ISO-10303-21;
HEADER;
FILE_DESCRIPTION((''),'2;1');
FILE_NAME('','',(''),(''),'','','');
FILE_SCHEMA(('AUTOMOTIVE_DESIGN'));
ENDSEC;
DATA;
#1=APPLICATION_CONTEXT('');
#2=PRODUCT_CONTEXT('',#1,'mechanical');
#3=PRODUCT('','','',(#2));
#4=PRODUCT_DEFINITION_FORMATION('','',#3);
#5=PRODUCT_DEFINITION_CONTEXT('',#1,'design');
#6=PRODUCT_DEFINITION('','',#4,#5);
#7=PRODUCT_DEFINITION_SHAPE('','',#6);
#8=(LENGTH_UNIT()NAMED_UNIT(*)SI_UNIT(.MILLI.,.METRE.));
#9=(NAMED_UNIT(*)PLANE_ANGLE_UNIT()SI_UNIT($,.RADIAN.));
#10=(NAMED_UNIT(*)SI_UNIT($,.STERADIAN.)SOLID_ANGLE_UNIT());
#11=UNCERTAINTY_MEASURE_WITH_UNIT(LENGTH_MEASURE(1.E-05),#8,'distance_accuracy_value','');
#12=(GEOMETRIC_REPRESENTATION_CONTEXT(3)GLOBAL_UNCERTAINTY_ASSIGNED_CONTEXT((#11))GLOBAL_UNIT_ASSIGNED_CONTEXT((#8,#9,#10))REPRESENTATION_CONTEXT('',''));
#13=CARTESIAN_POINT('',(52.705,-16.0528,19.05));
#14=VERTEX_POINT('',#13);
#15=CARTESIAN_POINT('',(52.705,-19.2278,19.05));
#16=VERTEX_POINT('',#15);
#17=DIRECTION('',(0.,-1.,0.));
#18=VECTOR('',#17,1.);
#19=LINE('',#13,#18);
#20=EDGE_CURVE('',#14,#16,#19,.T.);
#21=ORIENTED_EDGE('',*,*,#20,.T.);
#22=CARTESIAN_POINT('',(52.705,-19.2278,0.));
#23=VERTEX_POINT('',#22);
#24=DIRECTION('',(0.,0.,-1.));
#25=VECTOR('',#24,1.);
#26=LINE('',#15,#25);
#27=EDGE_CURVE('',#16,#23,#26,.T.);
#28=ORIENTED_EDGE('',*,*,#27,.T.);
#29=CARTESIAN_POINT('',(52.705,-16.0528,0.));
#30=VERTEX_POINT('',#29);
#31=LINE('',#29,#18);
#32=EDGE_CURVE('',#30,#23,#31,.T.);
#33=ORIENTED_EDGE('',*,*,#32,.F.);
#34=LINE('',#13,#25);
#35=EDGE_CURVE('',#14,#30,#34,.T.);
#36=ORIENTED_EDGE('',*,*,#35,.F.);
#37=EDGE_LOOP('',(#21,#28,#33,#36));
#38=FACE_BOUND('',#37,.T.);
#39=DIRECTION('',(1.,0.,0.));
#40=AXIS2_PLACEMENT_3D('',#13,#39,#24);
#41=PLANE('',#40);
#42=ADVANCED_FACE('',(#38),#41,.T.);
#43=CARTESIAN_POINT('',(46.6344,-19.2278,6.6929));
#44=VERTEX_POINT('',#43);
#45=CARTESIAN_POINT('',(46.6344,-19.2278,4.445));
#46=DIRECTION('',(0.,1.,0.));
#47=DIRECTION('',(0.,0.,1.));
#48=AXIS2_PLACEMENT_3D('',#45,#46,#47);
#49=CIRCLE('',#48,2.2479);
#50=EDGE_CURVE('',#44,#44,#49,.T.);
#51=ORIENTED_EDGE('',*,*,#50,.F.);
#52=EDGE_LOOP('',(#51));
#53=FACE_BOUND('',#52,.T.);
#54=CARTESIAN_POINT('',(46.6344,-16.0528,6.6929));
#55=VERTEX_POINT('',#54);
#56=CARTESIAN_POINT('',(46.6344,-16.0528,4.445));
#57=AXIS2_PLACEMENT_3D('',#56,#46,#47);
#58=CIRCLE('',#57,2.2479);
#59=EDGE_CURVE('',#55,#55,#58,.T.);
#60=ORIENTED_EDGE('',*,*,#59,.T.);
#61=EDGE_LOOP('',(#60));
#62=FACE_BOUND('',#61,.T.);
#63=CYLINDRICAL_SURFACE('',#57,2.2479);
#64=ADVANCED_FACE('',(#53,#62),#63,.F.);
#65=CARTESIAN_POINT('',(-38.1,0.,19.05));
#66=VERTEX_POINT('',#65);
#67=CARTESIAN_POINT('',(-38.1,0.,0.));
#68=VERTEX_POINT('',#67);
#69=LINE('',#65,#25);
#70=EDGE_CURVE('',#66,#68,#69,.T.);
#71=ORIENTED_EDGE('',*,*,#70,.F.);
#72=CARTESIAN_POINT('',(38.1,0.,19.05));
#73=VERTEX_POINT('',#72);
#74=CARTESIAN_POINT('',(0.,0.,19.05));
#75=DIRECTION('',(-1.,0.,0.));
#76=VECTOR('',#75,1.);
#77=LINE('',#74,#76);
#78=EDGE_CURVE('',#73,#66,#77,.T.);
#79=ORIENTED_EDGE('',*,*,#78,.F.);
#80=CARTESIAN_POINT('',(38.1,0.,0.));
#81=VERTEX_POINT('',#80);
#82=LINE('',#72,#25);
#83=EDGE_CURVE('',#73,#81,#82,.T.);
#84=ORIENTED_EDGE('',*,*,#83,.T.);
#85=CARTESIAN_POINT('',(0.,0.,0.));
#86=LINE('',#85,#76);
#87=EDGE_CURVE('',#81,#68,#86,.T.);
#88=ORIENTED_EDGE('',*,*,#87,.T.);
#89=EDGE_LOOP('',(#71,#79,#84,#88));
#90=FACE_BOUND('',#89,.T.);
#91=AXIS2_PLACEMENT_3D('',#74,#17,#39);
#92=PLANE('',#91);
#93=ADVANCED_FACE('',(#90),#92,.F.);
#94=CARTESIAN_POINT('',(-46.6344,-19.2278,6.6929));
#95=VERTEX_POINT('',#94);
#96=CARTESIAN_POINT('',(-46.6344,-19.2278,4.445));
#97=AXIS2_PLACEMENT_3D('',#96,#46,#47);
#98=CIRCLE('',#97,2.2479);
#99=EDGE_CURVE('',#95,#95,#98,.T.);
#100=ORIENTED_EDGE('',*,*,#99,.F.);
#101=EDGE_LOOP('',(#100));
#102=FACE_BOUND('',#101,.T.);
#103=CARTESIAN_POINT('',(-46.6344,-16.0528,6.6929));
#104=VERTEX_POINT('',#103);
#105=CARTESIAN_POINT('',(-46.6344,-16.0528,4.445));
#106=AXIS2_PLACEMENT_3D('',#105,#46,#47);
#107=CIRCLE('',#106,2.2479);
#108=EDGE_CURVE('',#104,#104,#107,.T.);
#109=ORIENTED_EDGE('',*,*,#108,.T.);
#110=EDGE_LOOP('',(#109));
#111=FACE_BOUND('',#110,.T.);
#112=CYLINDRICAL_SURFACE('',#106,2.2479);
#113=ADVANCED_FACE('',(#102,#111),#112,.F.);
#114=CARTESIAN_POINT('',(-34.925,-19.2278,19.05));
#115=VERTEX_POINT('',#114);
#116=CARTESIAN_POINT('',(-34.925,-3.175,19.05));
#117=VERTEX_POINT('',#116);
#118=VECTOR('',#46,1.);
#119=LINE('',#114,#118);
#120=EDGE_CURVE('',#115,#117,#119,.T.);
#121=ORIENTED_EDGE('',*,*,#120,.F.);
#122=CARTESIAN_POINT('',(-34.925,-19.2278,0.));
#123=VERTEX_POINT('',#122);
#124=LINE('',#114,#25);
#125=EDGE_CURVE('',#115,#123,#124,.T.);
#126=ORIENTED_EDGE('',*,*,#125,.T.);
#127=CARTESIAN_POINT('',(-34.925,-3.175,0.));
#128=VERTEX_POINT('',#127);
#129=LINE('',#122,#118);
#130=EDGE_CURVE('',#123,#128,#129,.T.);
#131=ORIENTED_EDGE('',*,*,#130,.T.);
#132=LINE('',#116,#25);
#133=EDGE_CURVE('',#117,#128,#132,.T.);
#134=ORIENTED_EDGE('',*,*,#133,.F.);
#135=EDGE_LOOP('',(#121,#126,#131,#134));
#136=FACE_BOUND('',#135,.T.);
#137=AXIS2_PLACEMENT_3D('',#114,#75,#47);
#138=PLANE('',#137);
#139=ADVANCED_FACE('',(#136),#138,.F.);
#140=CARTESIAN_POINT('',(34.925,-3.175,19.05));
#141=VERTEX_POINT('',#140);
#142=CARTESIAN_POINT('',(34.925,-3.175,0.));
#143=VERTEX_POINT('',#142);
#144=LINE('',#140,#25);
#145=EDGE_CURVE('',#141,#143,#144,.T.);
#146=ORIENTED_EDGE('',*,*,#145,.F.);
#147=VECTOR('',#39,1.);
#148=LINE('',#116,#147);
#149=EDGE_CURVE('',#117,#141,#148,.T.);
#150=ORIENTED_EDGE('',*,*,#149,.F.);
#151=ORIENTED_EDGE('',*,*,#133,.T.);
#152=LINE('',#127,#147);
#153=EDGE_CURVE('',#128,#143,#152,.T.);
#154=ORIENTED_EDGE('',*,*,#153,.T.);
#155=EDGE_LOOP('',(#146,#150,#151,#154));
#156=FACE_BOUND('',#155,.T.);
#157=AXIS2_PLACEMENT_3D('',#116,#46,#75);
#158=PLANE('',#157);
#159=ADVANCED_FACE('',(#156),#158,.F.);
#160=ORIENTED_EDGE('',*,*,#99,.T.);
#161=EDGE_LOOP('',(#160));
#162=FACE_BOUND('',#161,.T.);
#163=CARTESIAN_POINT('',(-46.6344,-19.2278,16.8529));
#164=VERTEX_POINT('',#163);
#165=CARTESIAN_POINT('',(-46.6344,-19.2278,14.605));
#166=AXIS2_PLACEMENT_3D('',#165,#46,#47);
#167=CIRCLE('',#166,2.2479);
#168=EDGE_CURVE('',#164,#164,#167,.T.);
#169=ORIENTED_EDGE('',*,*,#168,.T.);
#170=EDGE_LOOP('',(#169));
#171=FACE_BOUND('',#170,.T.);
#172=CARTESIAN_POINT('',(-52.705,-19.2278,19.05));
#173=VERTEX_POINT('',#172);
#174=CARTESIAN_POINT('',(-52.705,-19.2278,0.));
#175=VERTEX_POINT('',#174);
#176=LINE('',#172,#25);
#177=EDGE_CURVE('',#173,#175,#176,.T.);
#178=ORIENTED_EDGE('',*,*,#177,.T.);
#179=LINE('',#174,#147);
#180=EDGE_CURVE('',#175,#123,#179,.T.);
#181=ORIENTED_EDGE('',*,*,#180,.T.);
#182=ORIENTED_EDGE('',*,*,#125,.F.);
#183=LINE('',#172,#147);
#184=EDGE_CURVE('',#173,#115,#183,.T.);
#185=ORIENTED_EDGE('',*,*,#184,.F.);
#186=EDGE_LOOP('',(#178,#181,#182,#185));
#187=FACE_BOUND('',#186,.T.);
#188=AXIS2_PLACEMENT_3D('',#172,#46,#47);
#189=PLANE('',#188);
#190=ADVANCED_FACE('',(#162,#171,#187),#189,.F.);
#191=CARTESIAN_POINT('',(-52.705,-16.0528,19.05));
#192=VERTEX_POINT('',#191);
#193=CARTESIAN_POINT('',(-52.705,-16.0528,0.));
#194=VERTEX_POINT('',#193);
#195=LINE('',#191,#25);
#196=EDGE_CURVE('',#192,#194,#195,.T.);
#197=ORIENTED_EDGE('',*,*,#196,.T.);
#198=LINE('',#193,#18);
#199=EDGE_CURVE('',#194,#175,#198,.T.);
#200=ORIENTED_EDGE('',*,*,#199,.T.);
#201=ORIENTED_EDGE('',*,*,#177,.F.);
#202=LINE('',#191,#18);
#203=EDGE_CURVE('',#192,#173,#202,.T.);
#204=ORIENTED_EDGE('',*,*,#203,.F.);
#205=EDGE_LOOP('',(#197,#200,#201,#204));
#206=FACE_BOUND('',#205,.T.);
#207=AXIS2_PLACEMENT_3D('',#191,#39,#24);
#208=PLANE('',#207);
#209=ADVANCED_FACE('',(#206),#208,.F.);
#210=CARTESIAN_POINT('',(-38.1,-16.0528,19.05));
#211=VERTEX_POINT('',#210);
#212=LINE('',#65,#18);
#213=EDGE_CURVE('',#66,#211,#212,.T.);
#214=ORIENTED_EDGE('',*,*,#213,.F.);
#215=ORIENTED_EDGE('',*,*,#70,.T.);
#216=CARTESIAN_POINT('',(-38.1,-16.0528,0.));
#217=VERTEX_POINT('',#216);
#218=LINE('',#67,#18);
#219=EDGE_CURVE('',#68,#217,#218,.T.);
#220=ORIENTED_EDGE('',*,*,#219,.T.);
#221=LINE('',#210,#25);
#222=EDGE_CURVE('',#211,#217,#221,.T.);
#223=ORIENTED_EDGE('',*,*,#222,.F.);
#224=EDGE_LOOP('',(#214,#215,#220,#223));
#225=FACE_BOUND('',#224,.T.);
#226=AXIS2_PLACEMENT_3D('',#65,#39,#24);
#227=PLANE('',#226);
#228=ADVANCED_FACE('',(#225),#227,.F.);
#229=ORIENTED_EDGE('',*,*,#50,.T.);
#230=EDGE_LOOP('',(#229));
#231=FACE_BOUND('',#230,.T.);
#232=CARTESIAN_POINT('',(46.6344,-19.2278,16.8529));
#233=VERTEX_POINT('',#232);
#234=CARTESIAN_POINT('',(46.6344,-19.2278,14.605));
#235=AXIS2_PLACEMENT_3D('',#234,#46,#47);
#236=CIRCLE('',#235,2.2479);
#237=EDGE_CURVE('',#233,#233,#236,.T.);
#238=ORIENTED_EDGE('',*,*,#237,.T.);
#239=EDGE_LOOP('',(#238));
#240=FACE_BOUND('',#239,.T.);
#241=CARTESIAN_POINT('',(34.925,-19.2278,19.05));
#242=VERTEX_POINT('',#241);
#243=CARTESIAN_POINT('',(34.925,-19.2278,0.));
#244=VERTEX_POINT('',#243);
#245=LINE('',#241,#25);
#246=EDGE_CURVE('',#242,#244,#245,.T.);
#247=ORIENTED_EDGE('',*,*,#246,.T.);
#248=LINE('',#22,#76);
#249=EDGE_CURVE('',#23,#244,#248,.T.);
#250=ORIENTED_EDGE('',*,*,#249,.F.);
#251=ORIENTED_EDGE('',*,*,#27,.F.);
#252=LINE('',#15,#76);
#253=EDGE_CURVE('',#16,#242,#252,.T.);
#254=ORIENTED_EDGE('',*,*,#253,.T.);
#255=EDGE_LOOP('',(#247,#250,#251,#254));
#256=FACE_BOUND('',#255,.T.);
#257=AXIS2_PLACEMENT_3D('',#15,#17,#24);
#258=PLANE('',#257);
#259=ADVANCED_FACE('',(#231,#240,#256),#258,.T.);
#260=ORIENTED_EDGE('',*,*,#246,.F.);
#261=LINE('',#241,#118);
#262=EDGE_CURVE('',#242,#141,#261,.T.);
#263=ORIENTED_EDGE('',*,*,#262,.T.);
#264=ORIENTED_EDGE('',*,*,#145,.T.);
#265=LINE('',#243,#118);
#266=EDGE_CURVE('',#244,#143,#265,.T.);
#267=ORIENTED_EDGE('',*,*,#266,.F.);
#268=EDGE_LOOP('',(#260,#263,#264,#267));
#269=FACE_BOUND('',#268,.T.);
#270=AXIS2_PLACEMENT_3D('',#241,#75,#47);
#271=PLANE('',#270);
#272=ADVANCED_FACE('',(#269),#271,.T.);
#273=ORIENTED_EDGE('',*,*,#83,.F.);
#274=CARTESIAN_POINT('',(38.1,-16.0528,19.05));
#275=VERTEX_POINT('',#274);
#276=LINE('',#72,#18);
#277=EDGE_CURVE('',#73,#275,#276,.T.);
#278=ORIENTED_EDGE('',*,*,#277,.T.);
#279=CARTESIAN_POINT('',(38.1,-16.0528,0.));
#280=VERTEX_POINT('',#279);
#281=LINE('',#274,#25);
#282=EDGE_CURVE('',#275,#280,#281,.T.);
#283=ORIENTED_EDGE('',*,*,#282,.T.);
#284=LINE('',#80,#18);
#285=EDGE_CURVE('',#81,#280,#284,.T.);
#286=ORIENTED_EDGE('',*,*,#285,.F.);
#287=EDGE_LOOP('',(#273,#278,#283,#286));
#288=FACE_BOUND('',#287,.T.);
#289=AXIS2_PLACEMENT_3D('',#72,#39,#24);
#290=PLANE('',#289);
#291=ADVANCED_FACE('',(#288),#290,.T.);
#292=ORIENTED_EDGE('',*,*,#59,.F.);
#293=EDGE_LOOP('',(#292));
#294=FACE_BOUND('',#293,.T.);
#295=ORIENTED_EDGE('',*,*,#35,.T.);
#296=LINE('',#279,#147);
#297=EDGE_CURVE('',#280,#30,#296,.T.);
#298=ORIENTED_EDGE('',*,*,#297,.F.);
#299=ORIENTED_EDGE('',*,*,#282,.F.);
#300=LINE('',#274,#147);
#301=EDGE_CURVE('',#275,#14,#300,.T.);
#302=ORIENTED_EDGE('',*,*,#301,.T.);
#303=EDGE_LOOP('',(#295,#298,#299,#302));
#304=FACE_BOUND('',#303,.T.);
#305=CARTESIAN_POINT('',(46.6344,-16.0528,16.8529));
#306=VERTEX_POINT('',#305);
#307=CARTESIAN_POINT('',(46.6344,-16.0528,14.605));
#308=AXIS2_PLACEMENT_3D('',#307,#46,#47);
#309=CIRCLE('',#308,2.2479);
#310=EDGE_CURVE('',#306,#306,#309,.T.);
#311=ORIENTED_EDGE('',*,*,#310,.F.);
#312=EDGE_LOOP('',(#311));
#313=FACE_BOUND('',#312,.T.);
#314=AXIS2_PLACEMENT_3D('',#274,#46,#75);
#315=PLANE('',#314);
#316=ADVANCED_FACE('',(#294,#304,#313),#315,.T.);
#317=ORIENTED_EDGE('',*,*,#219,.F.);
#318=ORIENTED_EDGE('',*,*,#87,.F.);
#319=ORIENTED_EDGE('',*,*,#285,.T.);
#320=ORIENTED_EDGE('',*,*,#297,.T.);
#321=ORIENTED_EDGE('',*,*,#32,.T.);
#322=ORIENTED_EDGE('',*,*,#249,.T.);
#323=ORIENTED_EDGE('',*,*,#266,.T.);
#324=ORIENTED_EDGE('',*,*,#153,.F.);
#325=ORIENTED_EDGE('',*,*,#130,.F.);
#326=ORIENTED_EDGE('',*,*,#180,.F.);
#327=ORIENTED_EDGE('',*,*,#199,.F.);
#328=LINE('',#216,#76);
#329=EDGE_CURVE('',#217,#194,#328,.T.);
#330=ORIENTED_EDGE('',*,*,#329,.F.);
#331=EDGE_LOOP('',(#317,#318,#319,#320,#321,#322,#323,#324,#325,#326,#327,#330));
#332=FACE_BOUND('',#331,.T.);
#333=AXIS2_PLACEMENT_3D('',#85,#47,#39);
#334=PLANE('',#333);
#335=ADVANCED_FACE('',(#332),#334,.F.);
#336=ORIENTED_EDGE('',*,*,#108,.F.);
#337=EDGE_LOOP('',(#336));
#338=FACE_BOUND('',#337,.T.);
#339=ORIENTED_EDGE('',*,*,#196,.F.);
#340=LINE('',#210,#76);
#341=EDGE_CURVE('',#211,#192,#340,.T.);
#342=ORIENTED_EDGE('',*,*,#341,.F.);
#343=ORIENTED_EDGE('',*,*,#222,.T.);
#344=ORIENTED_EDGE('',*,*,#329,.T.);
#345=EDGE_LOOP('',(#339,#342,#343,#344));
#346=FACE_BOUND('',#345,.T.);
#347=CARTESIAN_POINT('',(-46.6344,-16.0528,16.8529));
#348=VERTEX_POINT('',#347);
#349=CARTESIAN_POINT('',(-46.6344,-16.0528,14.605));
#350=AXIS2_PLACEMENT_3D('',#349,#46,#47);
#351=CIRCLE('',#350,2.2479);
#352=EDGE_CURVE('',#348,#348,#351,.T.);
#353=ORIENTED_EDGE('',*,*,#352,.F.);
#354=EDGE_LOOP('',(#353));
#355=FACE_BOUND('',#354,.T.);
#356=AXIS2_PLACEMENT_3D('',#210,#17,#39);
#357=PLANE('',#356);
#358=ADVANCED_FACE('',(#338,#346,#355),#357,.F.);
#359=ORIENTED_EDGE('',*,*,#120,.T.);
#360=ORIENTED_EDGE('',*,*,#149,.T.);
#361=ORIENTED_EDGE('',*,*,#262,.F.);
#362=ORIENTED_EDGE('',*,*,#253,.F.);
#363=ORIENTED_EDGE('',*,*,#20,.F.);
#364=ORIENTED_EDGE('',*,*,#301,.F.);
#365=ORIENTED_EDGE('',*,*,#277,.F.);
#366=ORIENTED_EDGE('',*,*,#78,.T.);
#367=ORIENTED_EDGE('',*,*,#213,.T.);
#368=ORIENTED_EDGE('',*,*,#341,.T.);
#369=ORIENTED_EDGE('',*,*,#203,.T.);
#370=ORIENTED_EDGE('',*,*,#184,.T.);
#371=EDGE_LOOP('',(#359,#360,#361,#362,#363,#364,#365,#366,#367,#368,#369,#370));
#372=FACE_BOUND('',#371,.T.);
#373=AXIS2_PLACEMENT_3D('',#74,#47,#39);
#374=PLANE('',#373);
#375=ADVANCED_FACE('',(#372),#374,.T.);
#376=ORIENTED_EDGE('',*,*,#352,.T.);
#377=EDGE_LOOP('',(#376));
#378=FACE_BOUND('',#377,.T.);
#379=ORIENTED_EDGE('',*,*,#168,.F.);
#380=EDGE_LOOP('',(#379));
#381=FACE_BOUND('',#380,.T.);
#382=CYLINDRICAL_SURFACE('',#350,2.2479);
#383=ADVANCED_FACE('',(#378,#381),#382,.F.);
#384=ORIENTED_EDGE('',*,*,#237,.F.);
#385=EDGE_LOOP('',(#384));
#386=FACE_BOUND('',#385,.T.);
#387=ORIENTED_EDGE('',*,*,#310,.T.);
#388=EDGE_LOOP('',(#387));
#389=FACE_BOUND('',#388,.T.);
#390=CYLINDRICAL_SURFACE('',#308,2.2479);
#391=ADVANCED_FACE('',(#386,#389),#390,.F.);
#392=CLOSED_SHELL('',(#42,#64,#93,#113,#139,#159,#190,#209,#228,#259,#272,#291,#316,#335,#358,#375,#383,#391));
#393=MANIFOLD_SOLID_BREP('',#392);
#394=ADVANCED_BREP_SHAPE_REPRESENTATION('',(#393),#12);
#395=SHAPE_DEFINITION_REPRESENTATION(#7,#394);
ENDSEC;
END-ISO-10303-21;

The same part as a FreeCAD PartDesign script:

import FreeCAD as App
import Part
import Sketcher
Q = App.Units.Quantity

doc = App.newDocument("Part")
params = doc.addObject("Spreadsheet::Sheet", "Params")
for row, (alias, value) in enumerate([
    ("sketch1_width", "1.5 in"),
    ("sketch1_width2", "0.7 in"),
    ("sketch1_width3", "0.575 in"),
    ("sketch1_height", "0.632 in"),
    ("sketch1_height2", "0.125 in"),
    ("pad1_length", "0.75 in"),
    ("sketch2_diameter", "0.177 in"),
    ("hole_diameter", "0.177 in"),
], start=1):
    params.set(f"A{row}", alias)
    params.set(f"B{row}", "=" + value)
    params.setAlias(f"B{row}", alias)

body = doc.addObject("PartDesign::Body", "Body")

sketch1 = body.newObject("Sketcher::SketchObject", "Sketch")
sketch1.AttachmentSupport = (doc.getObject("XY_Plane"), [""])
sketch1.MapMode = "FlatFace"
sketch1.addGeometry([
    Part.LineSegment(App.Vector(0, 0, 0), App.Vector(-38.1, 0, 0)),
    Part.LineSegment(App.Vector(-38.1, 0, 0), App.Vector(-38.1, -16.1, 0)),
    Part.LineSegment(App.Vector(-38.1, -16.1, 0), App.Vector(-52.7, -16.1, 0)),
    Part.LineSegment(App.Vector(-52.7, -16.1, 0), App.Vector(-52.7, -19.2, 0)),
    Part.LineSegment(App.Vector(-52.7, -19.2, 0), App.Vector(-34.9, -19.2, 0)),
    Part.LineSegment(App.Vector(-34.9, -19.2, 0), App.Vector(-34.9, -3.2, 0)),
    Part.LineSegment(App.Vector(-34.9, -3.2, 0), App.Vector(0, -3.2, 0)),
    Part.LineSegment(App.Vector(0, -3.2, 0), App.Vector(0, 0, 0)),
], False)
sketch1.addConstraint([
    Sketcher.Constraint("Coincident", 0, 2, 1, 1),
    Sketcher.Constraint("Coincident", 1, 2, 2, 1),
    Sketcher.Constraint("Coincident", 2, 2, 3, 1),
    Sketcher.Constraint("Coincident", 3, 2, 4, 1),
    Sketcher.Constraint("Coincident", 4, 2, 5, 1),
    Sketcher.Constraint("Coincident", 5, 2, 6, 1),
    Sketcher.Constraint("Coincident", 6, 2, 7, 1),
    Sketcher.Constraint("Coincident", 7, 2, 0, 1),
    Sketcher.Constraint("Horizontal", 0),
    Sketcher.Constraint("Vertical", 1),
    Sketcher.Constraint("Horizontal", 2),
    Sketcher.Constraint("Vertical", 3),
    Sketcher.Constraint("Horizontal", 4),
    Sketcher.Constraint("Vertical", 5),
    Sketcher.Constraint("Horizontal", 6),
    Sketcher.Constraint("Vertical", 7),
    Sketcher.Constraint("Coincident", 7, 2, -1, 1),
    Sketcher.Constraint("Equal", 1, 5),
    Sketcher.Constraint("DistanceX", 0, 2, 0, 1, Q("1.5 in")),
    Sketcher.Constraint("DistanceX", 4, 1, 4, 2, Q("0.7 in")),
    Sketcher.Constraint("DistanceX", 2, 2, 2, 1, Q("0.575 in")),
    Sketcher.Constraint("DistanceY", 1, 2, 1, 1, Q("0.632 in")),
    Sketcher.Constraint("DistanceY", 3, 2, 3, 1, Q("0.125 in")),
])
sketch1.setExpression("Constraints[18]", "Params.sketch1_width")
sketch1.setExpression("Constraints[19]", "Params.sketch1_width2")
sketch1.setExpression("Constraints[20]", "Params.sketch1_width3")
sketch1.setExpression("Constraints[21]", "Params.sketch1_height")
sketch1.setExpression("Constraints[22]", "Params.sketch1_height2")
pad1 = body.newObject("PartDesign::Pad", "Pad")
pad1.Profile = sketch1
pad1.setExpression("Length", "Params.pad1_length")

sketch2 = body.newObject("Sketcher::SketchObject", "Sketch001")
sketch2.AttachmentSupport = (doc.getObject("XZ_Plane"), [""])
sketch2.MapMode = "FlatFace"
sketch2.AttachmentOffset = App.Placement(App.Vector(0, 0, 0.632 * 25.4), App.Rotation())
sketch2.addGeometry([
    Part.Circle(App.Vector(-46.6, 4.4, 0), App.Vector(0, 0, 1), 2.2),
    Part.Circle(App.Vector(-46.6, 14.6, 0), App.Vector(0, 0, 1), 2.2),
], False)
sketch2.addConstraint([
    Sketcher.Constraint("Equal", 0, 1),
    Sketcher.Constraint("Vertical", 0, 3, 1, 3),
    Sketcher.Constraint("Diameter", 0, Q("0.177 in")),
    Sketcher.Constraint("DistanceY", 0, 3, 1, 3, Q("0.4 in")),
    Sketcher.Constraint("DistanceX", 0, 3, -1, 1, Q("1.836 in")),
    Sketcher.Constraint("DistanceY", -1, 1, 0, 3, Q("0.175 in")),
])
sketch2.setExpression("Constraints[2]", "Params.sketch2_diameter")
doc.recompute()
hole = body.newObject("PartDesign::Hole", "Hole")
hole.Profile = sketch2
hole.ThreadType = "None"
hole.setExpression("Diameter", "Params.hole_diameter")
hole.DepthType = "ThroughAll"
hole.Reversed = True
doc.recompute()

mirrored = body.newObject("PartDesign::Mirrored", "Mirrored")
mirrored.Originals = [pad1, hole]
mirrored.MirrorPlane = (doc.getObject("YZ_Plane"), [""])
body.Tip = mirrored

doc.recompute()
